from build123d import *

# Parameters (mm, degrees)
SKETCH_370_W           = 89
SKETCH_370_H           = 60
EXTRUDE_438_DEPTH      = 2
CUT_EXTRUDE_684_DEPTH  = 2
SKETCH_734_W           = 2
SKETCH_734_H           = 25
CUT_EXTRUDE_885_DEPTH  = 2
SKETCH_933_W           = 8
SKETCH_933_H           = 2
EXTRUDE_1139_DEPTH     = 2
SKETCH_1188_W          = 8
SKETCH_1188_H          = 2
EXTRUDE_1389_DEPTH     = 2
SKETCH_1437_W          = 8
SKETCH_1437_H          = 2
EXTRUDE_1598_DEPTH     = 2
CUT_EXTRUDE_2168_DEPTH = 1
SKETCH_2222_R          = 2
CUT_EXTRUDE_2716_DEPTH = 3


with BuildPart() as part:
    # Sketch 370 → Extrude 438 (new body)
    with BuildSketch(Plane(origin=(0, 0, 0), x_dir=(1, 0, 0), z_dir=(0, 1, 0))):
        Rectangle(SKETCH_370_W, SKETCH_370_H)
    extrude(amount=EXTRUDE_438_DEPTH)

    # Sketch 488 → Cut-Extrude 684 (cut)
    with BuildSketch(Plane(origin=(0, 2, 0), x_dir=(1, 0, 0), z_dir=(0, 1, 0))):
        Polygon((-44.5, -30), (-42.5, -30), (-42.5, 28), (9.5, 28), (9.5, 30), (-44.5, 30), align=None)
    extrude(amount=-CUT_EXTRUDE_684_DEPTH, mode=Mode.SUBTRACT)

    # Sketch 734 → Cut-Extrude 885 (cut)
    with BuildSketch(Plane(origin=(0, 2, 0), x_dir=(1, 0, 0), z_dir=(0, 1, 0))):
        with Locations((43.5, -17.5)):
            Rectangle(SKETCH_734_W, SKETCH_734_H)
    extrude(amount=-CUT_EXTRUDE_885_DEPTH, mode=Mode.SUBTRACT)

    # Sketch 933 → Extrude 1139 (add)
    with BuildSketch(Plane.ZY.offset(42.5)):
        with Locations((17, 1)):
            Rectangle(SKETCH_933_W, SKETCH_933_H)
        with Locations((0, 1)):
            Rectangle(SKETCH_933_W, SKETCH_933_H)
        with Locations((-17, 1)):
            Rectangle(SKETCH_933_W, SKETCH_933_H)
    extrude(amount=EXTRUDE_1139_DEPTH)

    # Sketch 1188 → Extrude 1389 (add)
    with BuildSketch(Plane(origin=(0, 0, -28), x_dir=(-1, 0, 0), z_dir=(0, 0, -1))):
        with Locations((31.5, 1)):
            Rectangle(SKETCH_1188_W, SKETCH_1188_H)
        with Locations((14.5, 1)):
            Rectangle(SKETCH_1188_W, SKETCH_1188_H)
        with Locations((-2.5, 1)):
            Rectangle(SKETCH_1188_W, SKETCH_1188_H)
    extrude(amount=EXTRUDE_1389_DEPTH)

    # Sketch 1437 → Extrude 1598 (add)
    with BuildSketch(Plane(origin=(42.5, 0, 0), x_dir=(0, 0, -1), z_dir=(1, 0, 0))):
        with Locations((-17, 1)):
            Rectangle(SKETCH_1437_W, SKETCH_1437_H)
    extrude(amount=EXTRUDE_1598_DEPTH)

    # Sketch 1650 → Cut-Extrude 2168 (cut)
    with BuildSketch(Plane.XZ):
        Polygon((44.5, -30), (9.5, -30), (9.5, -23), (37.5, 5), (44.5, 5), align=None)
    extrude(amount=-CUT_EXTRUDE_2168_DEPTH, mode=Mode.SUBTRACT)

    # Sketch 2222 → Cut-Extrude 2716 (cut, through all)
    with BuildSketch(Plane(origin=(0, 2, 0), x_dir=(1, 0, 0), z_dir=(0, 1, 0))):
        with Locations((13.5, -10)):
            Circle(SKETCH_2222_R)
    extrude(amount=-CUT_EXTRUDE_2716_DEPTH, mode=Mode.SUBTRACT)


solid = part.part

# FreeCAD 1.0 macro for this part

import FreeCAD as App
import Part
import Sketcher
Q = App.Units.Quantity

doc = App.newDocument("Part")
body = doc.addObject("PartDesign::Body", "Body")

sketch1 = body.newObject("Sketcher::SketchObject", "Sketch")
sketch1.AttachmentSupport = (doc.getObject("XZ_Plane"), [""])
sketch1.MapMode = "FlatFace"
sketch1.addGeometry([
    Part.LineSegment(App.Vector(-44, -30, 0), App.Vector(-44, 30, 0)),
    Part.LineSegment(App.Vector(-44, 30, 0), App.Vector(44, 30, 0)),
    Part.LineSegment(App.Vector(44, 30, 0), App.Vector(44, -30, 0)),
    Part.LineSegment(App.Vector(44, -30, 0), App.Vector(-44, -30, 0)),
], False)
sketch1.addConstraint([
    Sketcher.Constraint("Coincident", 0, 2, 1, 1),
    Sketcher.Constraint("Coincident", 1, 2, 2, 1),
    Sketcher.Constraint("Coincident", 2, 2, 3, 1),
    Sketcher.Constraint("Coincident", 3, 2, 0, 1),
    Sketcher.Constraint("Vertical", 0),
    Sketcher.Constraint("Horizontal", 1),
    Sketcher.Constraint("Vertical", 2),
    Sketcher.Constraint("Horizontal", 3),
    Sketcher.Constraint("Symmetric", 0, 2, 2, 2, -1, 1),
    Sketcher.Constraint("DistanceX", 1, 1, 1, 2, Q("89 mm")),
    Sketcher.Constraint("DistanceY", 0, 1, 0, 2, Q("60 mm")),
])
pad1 = body.newObject("PartDesign::Pad", "Pad")
pad1.Profile = sketch1
pad1.Length = 2
pad1.Reversed = True

sketch2 = body.newObject("Sketcher::SketchObject", "Sketch001")
sketch2.AttachmentSupport = (doc.getObject("XZ_Plane"), [""])
sketch2.MapMode = "FlatFace"
sketch2.AttachmentOffset = App.Placement(App.Vector(0, 0, -2), App.Rotation())
sketch2.addGeometry([
    Part.LineSegment(App.Vector(-44.5, 30, 0), App.Vector(-42.5, 30, 0)),
    Part.LineSegment(App.Vector(-42.5, 30, 0), App.Vector(-42.5, -28, 0)),
    Part.LineSegment(App.Vector(-42.5, -28, 0), App.Vector(9.5, -28, 0)),
    Part.LineSegment(App.Vector(9.5, -28, 0), App.Vector(9.5, -30, 0)),
    Part.LineSegment(App.Vector(9.5, -30, 0), App.Vector(-44.5, -30, 0)),
    Part.LineSegment(App.Vector(-44.5, -30, 0), App.Vector(-44.5, 30, 0)),
], False)
sketch2.addConstraint([
    Sketcher.Constraint("Coincident", 0, 2, 1, 1),
    Sketcher.Constraint("Coincident", 1, 2, 2, 1),
    Sketcher.Constraint("Coincident", 2, 2, 3, 1),
    Sketcher.Constraint("Coincident", 3, 2, 4, 1),
    Sketcher.Constraint("Coincident", 4, 2, 5, 1),
    Sketcher.Constraint("Coincident", 5, 2, 0, 1),
    Sketcher.Constraint("Horizontal", 0),
    Sketcher.Constraint("Vertical", 1),
    Sketcher.Constraint("Horizontal", 2),
    Sketcher.Constraint("Vertical", 3),
    Sketcher.Constraint("Horizontal", 4),
    Sketcher.Constraint("Vertical", 5),
    Sketcher.Constraint("Equal", 0, 3),
    Sketcher.Constraint("DistanceX", 0, 1, 0, 2, Q("2 mm")),
    Sketcher.Constraint("DistanceX", 2, 1, 2, 2, Q("52 mm")),
    Sketcher.Constraint("DistanceY", 1, 2, 1, 1, Q("58 mm")),
    Sketcher.Constraint("DistanceY", -1, 1, 0, 2, Q("30 mm")),
    Sketcher.Constraint("DistanceX", 0, 2, -1, 1, Q("42.5 mm")),
])
pocket1 = body.newObject("PartDesign::Pocket", "Pocket")
pocket1.Profile = sketch2
pocket1.Length = 2
pocket1.Reversed = True

sketch3 = body.newObject("Sketcher::SketchObject", "Sketch002")
sketch3.AttachmentSupport = (doc.getObject("XZ_Plane"), [""])
sketch3.MapMode = "FlatFace"
sketch3.AttachmentOffset = App.Placement(App.Vector(0, 0, -2), App.Rotation())
sketch3.addGeometry([
    Part.LineSegment(App.Vector(42.5, 5, 0), App.Vector(42.5, 30, 0)),
    Part.LineSegment(App.Vector(42.5, 30, 0), App.Vector(44.5, 30, 0)),
    Part.LineSegment(App.Vector(44.5, 30, 0), App.Vector(44.5, 5, 0)),
    Part.LineSegment(App.Vector(44.5, 5, 0), App.Vector(42.5, 5, 0)),
], False)
sketch3.addConstraint([
    Sketcher.Constraint("Coincident", 0, 2, 1, 1),
    Sketcher.Constraint("Coincident", 1, 2, 2, 1),
    Sketcher.Constraint("Coincident", 2, 2, 3, 1),
    Sketcher.Constraint("Coincident", 3, 2, 0, 1),
    Sketcher.Constraint("Vertical", 0),
    Sketcher.Constraint("Horizontal", 1),
    Sketcher.Constraint("Vertical", 2),
    Sketcher.Constraint("Horizontal", 3),
    Sketcher.Constraint("DistanceX", 1, 1, 1, 2, Q("2 mm")),
    Sketcher.Constraint("DistanceY", 0, 1, 0, 2, Q("25 mm")),
    Sketcher.Constraint("DistanceY", -1, 1, 0, 2, Q("30 mm")),
    Sketcher.Constraint("DistanceX", -1, 1, 0, 2, Q("42.5 mm")),
])
pocket2 = body.newObject("PartDesign::Pocket", "Pocket001")
pocket2.Profile = sketch3
pocket2.Length = 2
pocket2.Reversed = True

sketch4 = body.newObject("Sketcher::SketchObject", "Sketch003")
sketch4.AttachmentSupport = (doc.getObject("YZ_Plane"), [""])
sketch4.MapMode = "FlatFace"
sketch4.AttachmentOffset = App.Placement(App.Vector(0, 0, -42.5), App.Rotation())
sketch4.addGeometry([
    Part.LineSegment(App.Vector(2, 13, 0), App.Vector(0, 13, 0)),
    Part.LineSegment(App.Vector(0, 13, 0), App.Vector(0, 21, 0)),
    Part.LineSegment(App.Vector(0, 21, 0), App.Vector(2, 21, 0)),
    Part.LineSegment(App.Vector(2, 21, 0), App.Vector(2, 13, 0)),
    Part.LineSegment(App.Vector(2, -4, 0), App.Vector(0, -4, 0)),
    Part.LineSegment(App.Vector(0, -4, 0), App.Vector(0, 4, 0)),
    Part.LineSegment(App.Vector(0, 4, 0), App.Vector(2, 4, 0)),
    Part.LineSegment(App.Vector(2, 4, 0), App.Vector(2, -4, 0)),
    Part.LineSegment(App.Vector(2, -21, 0), App.Vector(0, -21, 0)),
    Part.LineSegment(App.Vector(0, -21, 0), App.Vector(0, -13, 0)),
    Part.LineSegment(App.Vector(0, -13, 0), App.Vector(2, -13, 0)),
    Part.LineSegment(App.Vector(2, -13, 0), App.Vector(2, -21, 0)),
], False)
sketch4.addConstraint([
    Sketcher.Constraint("Coincident", 0, 2, 1, 1),
    Sketcher.Constraint("Coincident", 1, 2, 2, 1),
    Sketcher.Constraint("Coincident", 2, 2, 3, 1),
    Sketcher.Constraint("Coincident", 3, 2, 0, 1),
    Sketcher.Constraint("Coincident", 4, 2, 5, 1),
    Sketcher.Constraint("Coincident", 5, 2, 6, 1),
    Sketcher.Constraint("Coincident", 6, 2, 7, 1),
    Sketcher.Constraint("Coincident", 7, 2, 4, 1),
    Sketcher.Constraint("Coincident", 8, 2, 9, 1),
    Sketcher.Constraint("Coincident", 9, 2, 10, 1),
    Sketcher.Constraint("Coincident", 10, 2, 11, 1),
    Sketcher.Constraint("Coincident", 11, 2, 8, 1),
    Sketcher.Constraint("Horizontal", 0),
    Sketcher.Constraint("Vertical", 1),
    Sketcher.Constraint("Horizontal", 2),
    Sketcher.Constraint("Vertical", 3),
    Sketcher.Constraint("Horizontal", 4),
    Sketcher.Constraint("Vertical", 5),
    Sketcher.Constraint("Horizontal", 6),
    Sketcher.Constraint("Vertical", 7),
    Sketcher.Constraint("Horizontal", 8),
    Sketcher.Constraint("Vertical", 9),
    Sketcher.Constraint("Horizontal", 10),
    Sketcher.Constraint("Vertical", 11),
    Sketcher.Constraint("Symmetric", 4, 2, 5, 2, -1, 1),
    Sketcher.Constraint("Symmetric", 1, 2, 8, 2, -1, 1),
    Sketcher.Constraint("Symmetric", 0, 2, 9, 2, -1),
    Sketcher.Constraint("Vertical", 3, 2, 6, 2),
    Sketcher.Constraint("Vertical", 7, 2, 10, 2),
    Sketcher.Constraint("Equal", 3, 5),
    Sketcher.Constraint("DistanceX", 0, 2, 0, 1, Q("2 mm")),
    Sketcher.Constraint("DistanceY", 1, 1, 1, 2, Q("8 mm")),
    Sketcher.Constraint("DistanceY", -1, 1, 0, 2, Q("13 mm")),
])
pad2 = body.newObject("PartDesign::Pad", "Pad001")
pad2.Profile = sketch4
pad2.Length = 2
pad2.Reversed = True

sketch5 = body.newObject("Sketcher::SketchObject", "Sketch004")
sketch5.AttachmentSupport = (doc.getObject("XY_Plane"), [""])
sketch5.MapMode = "FlatFace"
sketch5.AttachmentOffset = App.Placement(App.Vector(0, 0, -28), App.Rotation())
sketch5.addGeometry([
    Part.LineSegment(App.Vector(-27.5, 2, 0), App.Vector(-27.5, 0, 0)),
    Part.LineSegment(App.Vector(-27.5, 0, 0), App.Vector(-35.5, 0, 0)),
    Part.LineSegment(App.Vector(-35.5, 0, 0), App.Vector(-35.5, 2, 0)),
    Part.LineSegment(App.Vector(-35.5, 2, 0), App.Vector(-27.5, 2, 0)),
    Part.LineSegment(App.Vector(-10.5, 2, 0), App.Vector(-10.5, 0, 0)),
    Part.LineSegment(App.Vector(-10.5, 0, 0), App.Vector(-18.5, 0, 0)),
    Part.LineSegment(App.Vector(-18.5, 0, 0), App.Vector(-18.5, 2, 0)),
    Part.LineSegment(App.Vector(-18.5, 2, 0), App.Vector(-10.5, 2, 0)),
    Part.LineSegment(App.Vector(6.5, 2, 0), App.Vector(6.5, 0, 0)),
    Part.LineSegment(App.Vector(6.5, 0, 0), App.Vector(-1.5, 0, 0)),
    Part.LineSegment(App.Vector(-1.5, 0, 0), App.Vector(-1.5, 2, 0)),
    Part.LineSegment(App.Vector(-1.5, 2, 0), App.Vector(6.5, 2, 0)),
], False)
sketch5.addConstraint([
    Sketcher.Constraint("Coincident", 0, 2, 1, 1),
    Sketcher.Constraint("Coincident", 1, 2, 2, 1),
    Sketcher.Constraint("Coincident", 2, 2, 3, 1),
    Sketcher.Constraint("Coincident", 3, 2, 0, 1),
    Sketcher.Constraint("Coincident", 4, 2, 5, 1),
    Sketcher.Constraint("Coincident", 5, 2, 6, 1),
    Sketcher.Constraint("Coincident", 6, 2, 7, 1),
    Sketcher.Constraint("Coincident", 7, 2, 4, 1),
    Sketcher.Constraint("Coincident", 8, 2, 9, 1),
    Sketcher.Constraint("Coincident", 9, 2, 10, 1),
    Sketcher.Constraint("Coincident", 10, 2, 11, 1),
    Sketcher.Constraint("Coincident", 11, 2, 8, 1),
    Sketcher.Constraint("Vertical", 0),
    Sketcher.Constraint("Horizontal", 1),
    Sketcher.Constraint("Vertical", 2),
    Sketcher.Constraint("Horizontal", 3),
    Sketcher.Constraint("Vertical", 4),
    Sketcher.Constraint("Horizontal", 5),
    Sketcher.Constraint("Vertical", 6),
    Sketcher.Constraint("Horizontal", 7),
    Sketcher.Constraint("Vertical", 8),
    Sketcher.Constraint("Horizontal", 9),
    Sketcher.Constraint("Vertical", 10),
    Sketcher.Constraint("Horizontal", 11),
    Sketcher.Constraint("PointOnObject", 0, 2, -1),
    Sketcher.Constraint("PointOnObject", 4, 2, -1),
    Sketcher.Constraint("PointOnObject", 8, 2, -1),
    Sketcher.Constraint("Horizontal", 3, 2, 6, 2),
    Sketcher.Constraint("Horizontal", 7, 2, 10, 2),
    Sketcher.Constraint("Equal", 3, 5),
    Sketcher.Constraint("Equal", 7, 9),
    Sketcher.Constraint("DistanceX", 1, 2, 1, 1, Q("8 mm")),
    Sketcher.Constraint("DistanceY", 0, 2, 0, 1, Q("2 mm")),
    Sketcher.Constraint("DistanceX", 0, 2, 4, 2, Q("17 mm")),
    Sketcher.Constraint("DistanceX", 4, 2, 8, 2, Q("17 mm")),
    Sketcher.Constraint("DistanceX", 0, 2, -1, 1, Q("27.5 mm")),
])
pad3 = body.newObject("PartDesign::Pad", "Pad002")
pad3.Profile = sketch5
pad3.Length = 2
pad3.Reversed = True

sketch6 = body.newObject("Sketcher::SketchObject", "Sketch005")
sketch6.AttachmentSupport = (doc.getObject("YZ_Plane"), [""])
sketch6.MapMode = "FlatFace"
sketch6.AttachmentOffset = App.Placement(App.Vector(0, 0, 42.5), App.Rotation())
sketch6.addGeometry([
    Part.LineSegment(App.Vector(2, 21, 0), App.Vector(0, 21, 0)),
    Part.LineSegment(App.Vector(0, 21, 0), App.Vector(0, 13, 0)),
    Part.LineSegment(App.Vector(0, 13, 0), App.Vector(2, 13, 0)),
    Part.LineSegment(App.Vector(2, 13, 0), App.Vector(2, 21, 0)),
], False)
sketch6.addConstraint([
    Sketcher.Constraint("Coincident", 0, 2, 1, 1),
    Sketcher.Constraint("Coincident", 1, 2, 2, 1),
    Sketcher.Constraint("Coincident", 2, 2, 3, 1),
    Sketcher.Constraint("Coincident", 3, 2, 0, 1),
    Sketcher.Constraint("Horizontal", 0),
    Sketcher.Constraint("Vertical", 1),
    Sketcher.Constraint("Horizontal", 2),
    Sketcher.Constraint("Vertical", 3),
    Sketcher.Constraint("PointOnObject", 0, 2, -2),
    Sketcher.Constraint("DistanceX", 0, 2, 0, 1, Q("2 mm")),
    Sketcher.Constraint("DistanceY", 1, 2, 1, 1, Q("8 mm")),
    Sketcher.Constraint("DistanceY", -1, 1, 0, 2, Q("21 mm")),
])
pad4 = body.newObject("PartDesign::Pad", "Pad003")
pad4.Profile = sketch6
pad4.Length = 2

sketch7 = body.newObject("Sketcher::SketchObject", "Sketch006")
sketch7.AttachmentSupport = (doc.getObject("XZ_Plane"), [""])
sketch7.MapMode = "FlatFace"
sketch7.addGeometry([
    Part.LineSegment(App.Vector(10, -30, 0), App.Vector(44, -30, 0)),
    Part.LineSegment(App.Vector(44, -30, 0), App.Vector(44, 5, 0)),
    Part.LineSegment(App.Vector(44, 5, 0), App.Vector(38, 5, 0)),
    Part.LineSegment(App.Vector(38, 5, 0), App.Vector(10, -23, 0)),
    Part.LineSegment(App.Vector(10, -23, 0), App.Vector(10, -30, 0)),
], False)
sketch7.addConstraint([
    Sketcher.Constraint("Coincident", 0, 2, 1, 1),
    Sketcher.Constraint("Coincident", 1, 2, 2, 1),
    Sketcher.Constraint("Coincident", 2, 2, 3, 1),
    Sketcher.Constraint("Coincident", 3, 2, 4, 1),
    Sketcher.Constraint("Coincident", 4, 2, 0, 1),
    Sketcher.Constraint("Horizontal", 0),
    Sketcher.Constraint("Vertical", 1),
    Sketcher.Constraint("Horizontal", 2),
    Sketcher.Constraint("Vertical", 4),
    Sketcher.Constraint("Equal", 0, 1),
    Sketcher.Constraint("Equal", 2, 4),
    Sketcher.Constraint("DistanceX", 0, 1, 0, 2, Q("35 mm")),
    Sketcher.Constraint("DistanceX", 2, 2, 2, 1, Q("7 mm")),
    Sketcher.Constraint("DistanceY", 0, 2, -1, 1, Q("30 mm")),
    Sketcher.Constraint("DistanceX", -1, 1, 0, 2, Q("44.5 mm")),
])
pocket3 = body.newObject("PartDesign::Pocket", "Pocket002")
pocket3.Profile = sketch7
pocket3.Length = 1

sketch8 = body.newObject("Sketcher::SketchObject", "Sketch007")
sketch8.AttachmentSupport = (doc.getObject("XZ_Plane"), [""])
sketch8.MapMode = "FlatFace"
sketch8.AttachmentOffset = App.Placement(App.Vector(0, 0, -2), App.Rotation())
sketch8.addGeometry(Part.Circle(App.Vector(13.5, 10, 0), App.Vector(0, 0, 1), 2), False)
sketch8.addConstraint([
    Sketcher.Constraint("Diameter", 0, Q("4 mm")),
    Sketcher.Constraint("DistanceY", -1, 1, 0, 3, Q("10 mm")),
    Sketcher.Constraint("DistanceX", -1, 1, 0, 3, Q("13.5 mm")),
])
pocket4 = body.newObject("PartDesign::Pocket", "Pocket003")
pocket4.Profile = sketch8
pocket4.Type = "ThroughAll"
pocket4.Reversed = True

doc.recompute()
